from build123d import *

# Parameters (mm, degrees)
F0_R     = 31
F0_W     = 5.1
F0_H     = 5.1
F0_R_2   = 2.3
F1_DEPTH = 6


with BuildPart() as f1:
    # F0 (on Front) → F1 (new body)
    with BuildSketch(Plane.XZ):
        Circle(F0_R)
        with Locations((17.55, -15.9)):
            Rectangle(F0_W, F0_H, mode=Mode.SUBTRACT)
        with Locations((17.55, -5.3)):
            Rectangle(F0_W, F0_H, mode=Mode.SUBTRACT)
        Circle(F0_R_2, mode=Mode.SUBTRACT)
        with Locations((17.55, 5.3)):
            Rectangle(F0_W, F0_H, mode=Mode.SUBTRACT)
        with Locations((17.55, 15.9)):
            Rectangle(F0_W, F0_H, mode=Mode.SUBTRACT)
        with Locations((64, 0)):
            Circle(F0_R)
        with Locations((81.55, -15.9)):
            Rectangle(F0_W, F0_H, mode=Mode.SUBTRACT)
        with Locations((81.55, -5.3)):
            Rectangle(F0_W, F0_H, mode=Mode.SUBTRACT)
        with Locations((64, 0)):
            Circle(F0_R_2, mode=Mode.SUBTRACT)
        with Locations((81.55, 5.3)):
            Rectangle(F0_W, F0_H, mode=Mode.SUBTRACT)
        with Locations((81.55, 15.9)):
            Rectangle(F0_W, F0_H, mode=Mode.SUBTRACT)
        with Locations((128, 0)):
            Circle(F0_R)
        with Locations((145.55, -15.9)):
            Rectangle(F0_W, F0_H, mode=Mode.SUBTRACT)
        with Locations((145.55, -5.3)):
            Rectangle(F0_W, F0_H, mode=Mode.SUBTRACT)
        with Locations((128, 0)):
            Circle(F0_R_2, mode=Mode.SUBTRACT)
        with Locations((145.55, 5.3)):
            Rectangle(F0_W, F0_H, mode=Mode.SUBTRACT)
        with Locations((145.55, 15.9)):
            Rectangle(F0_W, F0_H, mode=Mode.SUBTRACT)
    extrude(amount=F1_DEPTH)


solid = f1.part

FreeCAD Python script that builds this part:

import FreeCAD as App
import Part
import Sketcher
from FreeCAD import Vector

doc = App.newDocument("Part")
body = doc.addObject("PartDesign::Body", "Body")
body.AllowCompound = True

sketch1 = body.newObject("Sketcher::SketchObject", "Sketch")
sketch1.AttachmentSupport = (doc.getObject("XZ_Plane"), [""])
sketch1.MapMode = "FlatFace"
sketch1.addGeometry(Part.Circle(Vector(0, 0, 0), Vector(0, 0, 1), 31), False)
sketch1.addGeometry(Part.LineSegment(Vector(20.1, -18.4, 0), Vector(15, -18.4, 0)), False)
sketch1.addGeometry(Part.LineSegment(Vector(15, -18.4, 0), Vector(15, -13.3, 0)), False)
sketch1.addGeometry(Part.LineSegment(Vector(15, -13.3, 0), Vector(20.1, -13.3, 0)), False)
sketch1.addGeometry(Part.LineSegment(Vector(20.1, -13.3, 0), Vector(20.1, -18.4, 0)), False)
sketch1.addGeometry(Part.LineSegment(Vector(20.1, -7.8, 0), Vector(15, -7.8, 0)), False)
sketch1.addGeometry(Part.LineSegment(Vector(15, -7.8, 0), Vector(15, -2.8, 0)), False)
sketch1.addGeometry(Part.LineSegment(Vector(15, -2.8, 0), Vector(20.1, -2.8, 0)), False)
sketch1.addGeometry(Part.LineSegment(Vector(20.1, -2.8, 0), Vector(20.1, -7.8, 0)), False)
sketch1.addGeometry(Part.Circle(Vector(0, 0, 0), Vector(0, 0, 1), 2.3), False)
sketch1.addGeometry(Part.LineSegment(Vector(20.1, 2.8, 0), Vector(15, 2.8, 0)), False)
sketch1.addGeometry(Part.LineSegment(Vector(15, 2.8, 0), Vector(15, 7.8, 0)), False)
sketch1.addGeometry(Part.LineSegment(Vector(15, 7.8, 0), Vector(20.1, 7.8, 0)), False)
sketch1.addGeometry(Part.LineSegment(Vector(20.1, 7.8, 0), Vector(20.1, 2.8, 0)), False)
sketch1.addGeometry(Part.LineSegment(Vector(20.1, 13.3, 0), Vector(15, 13.3, 0)), False)
sketch1.addGeometry(Part.LineSegment(Vector(15, 13.3, 0), Vector(15, 18.4, 0)), False)
sketch1.addGeometry(Part.LineSegment(Vector(15, 18.4, 0), Vector(20.1, 18.4, 0)), False)
sketch1.addGeometry(Part.LineSegment(Vector(20.1, 18.4, 0), Vector(20.1, 13.3, 0)), False)
sketch1.addGeometry(Part.Circle(Vector(64, 0, 0), Vector(0, 0, 1), 31), False)
sketch1.addGeometry(Part.LineSegment(Vector(84.1, -18.4, 0), Vector(79, -18.4, 0)), False)
sketch1.addGeometry(Part.LineSegment(Vector(79, -18.4, 0), Vector(79, -13.3, 0)), False)
sketch1.addGeometry(Part.LineSegment(Vector(79, -13.3, 0), Vector(84.1, -13.3, 0)), False)
sketch1.addGeometry(Part.LineSegment(Vector(84.1, -13.3, 0), Vector(84.1, -18.4, 0)), False)
sketch1.addGeometry(Part.LineSegment(Vector(84.1, -7.8, 0), Vector(79, -7.8, 0)), False)
sketch1.addGeometry(Part.LineSegment(Vector(79, -7.8, 0), Vector(79, -2.8, 0)), False)
sketch1.addGeometry(Part.LineSegment(Vector(79, -2.8, 0), Vector(84.1, -2.8, 0)), False)
sketch1.addGeometry(Part.LineSegment(Vector(84.1, -2.8, 0), Vector(84.1, -7.8, 0)), False)
sketch1.addGeometry(Part.Circle(Vector(64, 0, 0), Vector(0, 0, 1), 2.3), False)
sketch1.addGeometry(Part.LineSegment(Vector(84.1, 2.8, 0), Vector(79, 2.8, 0)), False)
sketch1.addGeometry(Part.LineSegment(Vector(79, 2.8, 0), Vector(79, 7.8, 0)), False)
sketch1.addGeometry(Part.LineSegment(Vector(79, 7.8, 0), Vector(84.1, 7.8, 0)), False)
sketch1.addGeometry(Part.LineSegment(Vector(84.1, 7.8, 0), Vector(84.1, 2.8, 0)), False)
sketch1.addGeometry(Part.LineSegment(Vector(84.1, 13.3, 0), Vector(79, 13.3, 0)), False)
sketch1.addGeometry(Part.LineSegment(Vector(79, 13.3, 0), Vector(79, 18.4, 0)), False)
sketch1.addGeometry(Part.LineSegment(Vector(79, 18.4, 0), Vector(84.1, 18.4, 0)), False)
sketch1.addGeometry(Part.LineSegment(Vector(84.1, 18.4, 0), Vector(84.1, 13.3, 0)), False)
sketch1.addGeometry(Part.Circle(Vector(128, 0, 0), Vector(0, 0, 1), 31), False)
sketch1.addGeometry(Part.LineSegment(Vector(148.1, -18.4, 0), Vector(143, -18.4, 0)), False)
sketch1.addGeometry(Part.LineSegment(Vector(143, -18.4, 0), Vector(143, -13.3, 0)), False)
sketch1.addGeometry(Part.LineSegment(Vector(143, -13.3, 0), Vector(148.1, -13.3, 0)), False)
sketch1.addGeometry(Part.LineSegment(Vector(148.1, -13.3, 0), Vector(148.1, -18.4, 0)), False)
sketch1.addGeometry(Part.LineSegment(Vector(148.1, -7.8, 0), Vector(143, -7.8, 0)), False)
sketch1.addGeometry(Part.LineSegment(Vector(143, -7.8, 0), Vector(143, -2.8, 0)), False)
sketch1.addGeometry(Part.LineSegment(Vector(143, -2.8, 0), Vector(148.1, -2.8, 0)), False)
sketch1.addGeometry(Part.LineSegment(Vector(148.1, -2.8, 0), Vector(148.1, -7.8, 0)), False)
sketch1.addGeometry(Part.Circle(Vector(128, 0, 0), Vector(0, 0, 1), 2.3), False)
sketch1.addGeometry(Part.LineSegment(Vector(148.1, 2.8, 0), Vector(143, 2.8, 0)), False)
sketch1.addGeometry(Part.LineSegment(Vector(143, 2.8, 0), Vector(143, 7.8, 0)), False)
sketch1.addGeometry(Part.LineSegment(Vector(143, 7.8, 0), Vector(148.1, 7.8, 0)), False)
sketch1.addGeometry(Part.LineSegment(Vector(148.1, 7.8, 0), Vector(148.1, 2.8, 0)), False)
sketch1.addGeometry(Part.LineSegment(Vector(148.1, 13.3, 0), Vector(143, 13.3, 0)), False)
sketch1.addGeometry(Part.LineSegment(Vector(143, 13.3, 0), Vector(143, 18.4, 0)), False)
sketch1.addGeometry(Part.LineSegment(Vector(143, 18.4, 0), Vector(148.1, 18.4, 0)), False)
sketch1.addGeometry(Part.LineSegment(Vector(148.1, 18.4, 0), Vector(148.1, 13.3, 0)), False)
sketch1.addConstraint(Sketcher.Constraint("Coincident", 1, 2, 2, 1))
sketch1.addConstraint(Sketcher.Constraint("Coincident", 2, 2, 3, 1))
sketch1.addConstraint(Sketcher.Constraint("Coincident", 3, 2, 4, 1))
sketch1.addConstraint(Sketcher.Constraint("Coincident", 4, 2, 1, 1))
sketch1.addConstraint(Sketcher.Constraint("Coincident", 5, 2, 6, 1))
sketch1.addConstraint(Sketcher.Constraint("Coincident", 6, 2, 7, 1))
sketch1.addConstraint(Sketcher.Constraint("Coincident", 7, 2, 8, 1))
sketch1.addConstraint(Sketcher.Constraint("Coincident", 8, 2, 5, 1))
sketch1.addConstraint(Sketcher.Constraint("Coincident", 10, 2, 11, 1))
sketch1.addConstraint(Sketcher.Constraint("Coincident", 11, 2, 12, 1))
sketch1.addConstraint(Sketcher.Constraint("Coincident", 12, 2, 13, 1))
sketch1.addConstraint(Sketcher.Constraint("Coincident", 13, 2, 10, 1))
sketch1.addConstraint(Sketcher.Constraint("Coincident", 14, 2, 15, 1))
sketch1.addConstraint(Sketcher.Constraint("Coincident", 15, 2, 16, 1))
sketch1.addConstraint(Sketcher.Constraint("Coincident", 16, 2, 17, 1))
sketch1.addConstraint(Sketcher.Constraint("Coincident", 17, 2, 14, 1))
sketch1.addConstraint(Sketcher.Constraint("Coincident", 19, 2, 20, 1))
sketch1.addConstraint(Sketcher.Constraint("Coincident", 20, 2, 21, 1))
sketch1.addConstraint(Sketcher.Constraint("Coincident", 21, 2, 22, 1))
sketch1.addConstraint(Sketcher.Constraint("Coincident", 22, 2, 19, 1))
sketch1.addConstraint(Sketcher.Constraint("Coincident", 23, 2, 24, 1))
sketch1.addConstraint(Sketcher.Constraint("Coincident", 24, 2, 25, 1))
sketch1.addConstraint(Sketcher.Constraint("Coincident", 25, 2, 26, 1))
sketch1.addConstraint(Sketcher.Constraint("Coincident", 26, 2, 23, 1))
sketch1.addConstraint(Sketcher.Constraint("Coincident", 28, 2, 29, 1))
sketch1.addConstraint(Sketcher.Constraint("Coincident", 29, 2, 30, 1))
sketch1.addConstraint(Sketcher.Constraint("Coincident", 30, 2, 31, 1))
sketch1.addConstraint(Sketcher.Constraint("Coincident", 31, 2, 28, 1))
sketch1.addConstraint(Sketcher.Constraint("Coincident", 32, 2, 33, 1))
sketch1.addConstraint(Sketcher.Constraint("Coincident", 33, 2, 34, 1))
sketch1.addConstraint(Sketcher.Constraint("Coincident", 34, 2, 35, 1))
sketch1.addConstraint(Sketcher.Constraint("Coincident", 35, 2, 32, 1))
sketch1.addConstraint(Sketcher.Constraint("Coincident", 37, 2, 38, 1))
sketch1.addConstraint(Sketcher.Constraint("Coincident", 38, 2, 39, 1))
sketch1.addConstraint(Sketcher.Constraint("Coincident", 39, 2, 40, 1))
sketch1.addConstraint(Sketcher.Constraint("Coincident", 40, 2, 37, 1))
sketch1.addConstraint(Sketcher.Constraint("Coincident", 41, 2, 42, 1))
sketch1.addConstraint(Sketcher.Constraint("Coincident", 42, 2, 43, 1))
sketch1.addConstraint(Sketcher.Constraint("Coincident", 43, 2, 44, 1))
sketch1.addConstraint(Sketcher.Constraint("Coincident", 44, 2, 41, 1))
sketch1.addConstraint(Sketcher.Constraint("Coincident", 46, 2, 47, 1))
sketch1.addConstraint(Sketcher.Constraint("Coincident", 47, 2, 48, 1))
sketch1.addConstraint(Sketcher.Constraint("Coincident", 48, 2, 49, 1))
sketch1.addConstraint(Sketcher.Constraint("Coincident", 49, 2, 46, 1))
sketch1.addConstraint(Sketcher.Constraint("Coincident", 50, 2, 51, 1))
sketch1.addConstraint(Sketcher.Constraint("Coincident", 51, 2, 52, 1))
sketch1.addConstraint(Sketcher.Constraint("Coincident", 52, 2, 53, 1))
sketch1.addConstraint(Sketcher.Constraint("Coincident", 53, 2, 50, 1))
sketch1.addConstraint(Sketcher.Constraint("Horizontal", 1))
sketch1.addConstraint(Sketcher.Constraint("Vertical", 2))
sketch1.addConstraint(Sketcher.Constraint("Horizontal", 3))
sketch1.addConstraint(Sketcher.Constraint("Vertical", 4))
sketch1.addConstraint(Sketcher.Constraint("Horizontal", 5))
sketch1.addConstraint(Sketcher.Constraint("Vertical", 6))
sketch1.addConstraint(Sketcher.Constraint("Horizontal", 7))
sketch1.addConstraint(Sketcher.Constraint("Vertical", 8))
sketch1.addConstraint(Sketcher.Constraint("Horizontal", 10))
sketch1.addConstraint(Sketcher.Constraint("Vertical", 11))
sketch1.addConstraint(Sketcher.Constraint("Horizontal", 12))
sketch1.addConstraint(Sketcher.Constraint("Vertical", 13))
sketch1.addConstraint(Sketcher.Constraint("Horizontal", 14))
sketch1.addConstraint(Sketcher.Constraint("Vertical", 15))
sketch1.addConstraint(Sketcher.Constraint("Horizontal", 16))
sketch1.addConstraint(Sketcher.Constraint("Vertical", 17))
sketch1.addConstraint(Sketcher.Constraint("Horizontal", 19))
sketch1.addConstraint(Sketcher.Constraint("Vertical", 20))
sketch1.addConstraint(Sketcher.Constraint("Horizontal", 21))
sketch1.addConstraint(Sketcher.Constraint("Vertical", 22))
sketch1.addConstraint(Sketcher.Constraint("Horizontal", 23))
sketch1.addConstraint(Sketcher.Constraint("Vertical", 24))
sketch1.addConstraint(Sketcher.Constraint("Horizontal", 25))
sketch1.addConstraint(Sketcher.Constraint("Vertical", 26))
sketch1.addConstraint(Sketcher.Constraint("Horizontal", 28))
sketch1.addConstraint(Sketcher.Constraint("Vertical", 29))
sketch1.addConstraint(Sketcher.Constraint("Horizontal", 30))
sketch1.addConstraint(Sketcher.Constraint("Vertical", 31))
sketch1.addConstraint(Sketcher.Constraint("Horizontal", 32))
sketch1.addConstraint(Sketcher.Constraint("Vertical", 33))
sketch1.addConstraint(Sketcher.Constraint("Horizontal", 34))
sketch1.addConstraint(Sketcher.Constraint("Vertical", 35))
sketch1.addConstraint(Sketcher.Constraint("Horizontal", 37))
sketch1.addConstraint(Sketcher.Constraint("Vertical", 38))
sketch1.addConstraint(Sketcher.Constraint("Horizontal", 39))
sketch1.addConstraint(Sketcher.Constraint("Vertical", 40))
sketch1.addConstraint(Sketcher.Constraint("Horizontal", 41))
sketch1.addConstraint(Sketcher.Constraint("Vertical", 42))
sketch1.addConstraint(Sketcher.Constraint("Horizontal", 43))
sketch1.addConstraint(Sketcher.Constraint("Vertical", 44))
sketch1.addConstraint(Sketcher.Constraint("Horizontal", 46))
sketch1.addConstraint(Sketcher.Constraint("Vertical", 47))
sketch1.addConstraint(Sketcher.Constraint("Horizontal", 48))
sketch1.addConstraint(Sketcher.Constraint("Vertical", 49))
sketch1.addConstraint(Sketcher.Constraint("Horizontal", 50))
sketch1.addConstraint(Sketcher.Constraint("Vertical", 51))
sketch1.addConstraint(Sketcher.Constraint("Horizontal", 52))
sketch1.addConstraint(Sketcher.Constraint("Vertical", 53))
sketch1.addConstraint(Sketcher.Constraint("Coincident", 0, 3, -1, 1))
sketch1.addConstraint(Sketcher.Constraint("Coincident", 9, 3, -1, 1))
sketch1.addConstraint(Sketcher.Constraint("Coincident", 27, 3, 18, 3))
sketch1.addConstraint(Sketcher.Constraint("Coincident", 45, 3, 36, 3))
sketch1.addConstraint(Sketcher.Constraint("Equal", 0, 18))
sketch1.addConstraint(Sketcher.Constraint("Equal", 9, 27))
sketch1.addConstraint(Sketcher.Constraint("Equal", 18, 36))
sketch1.addConstraint(Sketcher.Constraint("Equal", 27, 45))
sketch1.addConstraint(Sketcher.Constraint("Symmetric", 6, 2, 10, 2, -1))
sketch1.addConstraint(Sketcher.Constraint("Symmetric", 8, 2, 12, 2, -1))
sketch1.addConstraint(Sketcher.Constraint("Symmetric", 2, 2, 14, 2, -1))
sketch1.addConstraint(Sketcher.Constraint("Symmetric", 4, 2, 16, 2, -1))
sketch1.addConstraint(Sketcher.Constraint("Symmetric", 24, 2, 28, 2, -1))
sketch1.addConstraint(Sketcher.Constraint("Symmetric", 26, 2, 30, 2, -1))
sketch1.addConstraint(Sketcher.Constraint("Symmetric", 20, 2, 32, 2, -1))
sketch1.addConstraint(Sketcher.Constraint("Symmetric", 22, 2, 34, 2, -1))
sketch1.addConstraint(Sketcher.Constraint("Symmetric", 42, 2, 46, 2, -1))
sketch1.addConstraint(Sketcher.Constraint("Symmetric", 44, 2, 48, 2, -1))
sketch1.addConstraint(Sketcher.Constraint("Symmetric", 38, 2, 50, 2, -1))
sketch1.addConstraint(Sketcher.Constraint("Symmetric", 40, 2, 52, 2, -1))
sketch1.addConstraint(Sketcher.Constraint("PointOnObject", 18, 3, -1))
sketch1.addConstraint(Sketcher.Constraint("PointOnObject", 36, 3, -1))
sketch1.addConstraint(Sketcher.Constraint("Horizontal", 4, 2, 19, 2))
sketch1.addConstraint(Sketcher.Constraint("Horizontal", 3, 2, 20, 2))
sketch1.addConstraint(Sketcher.Constraint("Horizontal", 8, 2, 23, 2))
sketch1.addConstraint(Sketcher.Constraint("Horizontal", 7, 2, 24, 2))
sketch1.addConstraint(Sketcher.Constraint("Horizontal", 22, 2, 37, 2))
sketch1.addConstraint(Sketcher.Constraint("Horizontal", 21, 2, 38, 2))
sketch1.addConstraint(Sketcher.Constraint("Horizontal", 26, 2, 41, 2))
sketch1.addConstraint(Sketcher.Constraint("Horizontal", 25, 2, 42, 2))
sketch1.addConstraint(Sketcher.Constraint("Vertical", 2, 2, 5, 2))
sketch1.addConstraint(Sketcher.Constraint("Vertical", 4, 2, 7, 2))
sketch1.addConstraint(Sketcher.Constraint("Vertical", 20, 2, 23, 2))
sketch1.addConstraint(Sketcher.Constraint("Vertical", 22, 2, 25, 2))
sketch1.addConstraint(Sketcher.Constraint("Vertical", 38, 2, 41, 2))
sketch1.addConstraint(Sketcher.Constraint("Vertical", 40, 2, 43, 2))
sketch1.addConstraint(Sketcher.Constraint("Equal", 16, 19))
sketch1.addConstraint(Sketcher.Constraint("Equal", 34, 37))
sketch1.addConstraint(Sketcher.Constraint("Equal", 52, 2))
sketch1.addConstraint(Sketcher.Constraint("Equal", 4, 6))
sketch1.addConstraint(Sketcher.Constraint("Diameter", 0, 62.0))
sketch1.addConstraint(Sketcher.Constraint("Diameter", 9, 4.6))
sketch1.addConstraint(Sketcher.Constraint("DistanceX", 1, 2, 1, 1, 5.1))
sketch1.addConstraint(Sketcher.Constraint("DistanceX", -1, 1, 18, 3, 64.0))
sketch1.addConstraint(Sketcher.Constraint("DistanceX", -1, 1, 36, 3, 128.0))
sketch1.addConstraint(Sketcher.Constraint("DistanceX", -1, 1, 1, 2, 15.0))
sketch1.addConstraint(Sketcher.Constraint("DistanceX", -1, 1, 19, 2, 79.0))
sketch1.addConstraint(Sketcher.Constraint("DistanceX", -1, 1, 37, 2, 143.0))
sketch1.addConstraint(Sketcher.Constraint("DistanceY", 2, 2, 5, 2, 5.5))
sketch1.addConstraint(Sketcher.Constraint("DistanceY", 6, 2, 10, 2, 5.5))
pad1 = body.newObject("PartDesign::Pad", "Pad")
pad1.Profile = sketch1
pad1.Length = 6

doc.recompute()
